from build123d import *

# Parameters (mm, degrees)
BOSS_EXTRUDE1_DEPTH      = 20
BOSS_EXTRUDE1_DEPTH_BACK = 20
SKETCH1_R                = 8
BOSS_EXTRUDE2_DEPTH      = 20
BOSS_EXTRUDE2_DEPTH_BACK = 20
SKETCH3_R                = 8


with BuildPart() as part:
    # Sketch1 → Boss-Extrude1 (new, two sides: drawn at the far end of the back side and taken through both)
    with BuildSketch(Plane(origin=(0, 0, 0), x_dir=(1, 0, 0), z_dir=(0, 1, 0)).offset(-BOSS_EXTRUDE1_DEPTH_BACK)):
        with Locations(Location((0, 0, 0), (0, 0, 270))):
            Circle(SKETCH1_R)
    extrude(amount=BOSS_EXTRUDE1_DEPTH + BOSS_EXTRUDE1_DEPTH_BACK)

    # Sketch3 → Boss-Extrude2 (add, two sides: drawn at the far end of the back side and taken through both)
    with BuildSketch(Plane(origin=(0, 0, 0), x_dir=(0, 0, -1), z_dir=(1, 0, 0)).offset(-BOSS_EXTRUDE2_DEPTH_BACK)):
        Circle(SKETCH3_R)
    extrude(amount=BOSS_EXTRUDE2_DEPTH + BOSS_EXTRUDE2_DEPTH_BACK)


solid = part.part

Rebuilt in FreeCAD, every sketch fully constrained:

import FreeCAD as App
import Part
import Sketcher
from FreeCAD import Vector

doc = App.newDocument("Part")
body = doc.addObject("PartDesign::Body", "Body")

# Sketch on XZ plane
sketch1 = body.newObject("Sketcher::SketchObject", "Sketch")
sketch1.AttachmentSupport = (doc.getObject("XZ_Plane"), [""])
sketch1.MapMode = "FlatFace"
sketch1.addGeometry(Part.Circle(Vector(0, 0, 0), Vector(0, 0, 1), 8), False)
sketch1.addConstraint([
    Sketcher.Constraint("Coincident", 0, 3, -1, 1),
    Sketcher.Constraint("Diameter", 0, 16.0),
])
pad1 = body.newObject("PartDesign::Pad", "Pad")
pad1.Profile = sketch1
pad1.Type = "TwoLengths"
pad1.Length = 20
pad1.Length2 = 20
pad1.Reversed = True

# Sketch on YZ plane
sketch2 = body.newObject("Sketcher::SketchObject", "Sketch001")
sketch2.AttachmentSupport = (doc.getObject("YZ_Plane"), [""])
sketch2.MapMode = "FlatFace"
sketch2.addGeometry(Part.Circle(Vector(0, 0, 0), Vector(0, 0, 1), 8), False)
sketch2.addConstraint([
    Sketcher.Constraint("Coincident", 0, 3, -1, 1),
    Sketcher.Constraint("Diameter", 0, 16.0),
])
pad2 = body.newObject("PartDesign::Pad", "Pad001")
pad2.Profile = sketch2
pad2.Type = "TwoLengths"
pad2.Length = 20
pad2.Length2 = 20

doc.recompute()
